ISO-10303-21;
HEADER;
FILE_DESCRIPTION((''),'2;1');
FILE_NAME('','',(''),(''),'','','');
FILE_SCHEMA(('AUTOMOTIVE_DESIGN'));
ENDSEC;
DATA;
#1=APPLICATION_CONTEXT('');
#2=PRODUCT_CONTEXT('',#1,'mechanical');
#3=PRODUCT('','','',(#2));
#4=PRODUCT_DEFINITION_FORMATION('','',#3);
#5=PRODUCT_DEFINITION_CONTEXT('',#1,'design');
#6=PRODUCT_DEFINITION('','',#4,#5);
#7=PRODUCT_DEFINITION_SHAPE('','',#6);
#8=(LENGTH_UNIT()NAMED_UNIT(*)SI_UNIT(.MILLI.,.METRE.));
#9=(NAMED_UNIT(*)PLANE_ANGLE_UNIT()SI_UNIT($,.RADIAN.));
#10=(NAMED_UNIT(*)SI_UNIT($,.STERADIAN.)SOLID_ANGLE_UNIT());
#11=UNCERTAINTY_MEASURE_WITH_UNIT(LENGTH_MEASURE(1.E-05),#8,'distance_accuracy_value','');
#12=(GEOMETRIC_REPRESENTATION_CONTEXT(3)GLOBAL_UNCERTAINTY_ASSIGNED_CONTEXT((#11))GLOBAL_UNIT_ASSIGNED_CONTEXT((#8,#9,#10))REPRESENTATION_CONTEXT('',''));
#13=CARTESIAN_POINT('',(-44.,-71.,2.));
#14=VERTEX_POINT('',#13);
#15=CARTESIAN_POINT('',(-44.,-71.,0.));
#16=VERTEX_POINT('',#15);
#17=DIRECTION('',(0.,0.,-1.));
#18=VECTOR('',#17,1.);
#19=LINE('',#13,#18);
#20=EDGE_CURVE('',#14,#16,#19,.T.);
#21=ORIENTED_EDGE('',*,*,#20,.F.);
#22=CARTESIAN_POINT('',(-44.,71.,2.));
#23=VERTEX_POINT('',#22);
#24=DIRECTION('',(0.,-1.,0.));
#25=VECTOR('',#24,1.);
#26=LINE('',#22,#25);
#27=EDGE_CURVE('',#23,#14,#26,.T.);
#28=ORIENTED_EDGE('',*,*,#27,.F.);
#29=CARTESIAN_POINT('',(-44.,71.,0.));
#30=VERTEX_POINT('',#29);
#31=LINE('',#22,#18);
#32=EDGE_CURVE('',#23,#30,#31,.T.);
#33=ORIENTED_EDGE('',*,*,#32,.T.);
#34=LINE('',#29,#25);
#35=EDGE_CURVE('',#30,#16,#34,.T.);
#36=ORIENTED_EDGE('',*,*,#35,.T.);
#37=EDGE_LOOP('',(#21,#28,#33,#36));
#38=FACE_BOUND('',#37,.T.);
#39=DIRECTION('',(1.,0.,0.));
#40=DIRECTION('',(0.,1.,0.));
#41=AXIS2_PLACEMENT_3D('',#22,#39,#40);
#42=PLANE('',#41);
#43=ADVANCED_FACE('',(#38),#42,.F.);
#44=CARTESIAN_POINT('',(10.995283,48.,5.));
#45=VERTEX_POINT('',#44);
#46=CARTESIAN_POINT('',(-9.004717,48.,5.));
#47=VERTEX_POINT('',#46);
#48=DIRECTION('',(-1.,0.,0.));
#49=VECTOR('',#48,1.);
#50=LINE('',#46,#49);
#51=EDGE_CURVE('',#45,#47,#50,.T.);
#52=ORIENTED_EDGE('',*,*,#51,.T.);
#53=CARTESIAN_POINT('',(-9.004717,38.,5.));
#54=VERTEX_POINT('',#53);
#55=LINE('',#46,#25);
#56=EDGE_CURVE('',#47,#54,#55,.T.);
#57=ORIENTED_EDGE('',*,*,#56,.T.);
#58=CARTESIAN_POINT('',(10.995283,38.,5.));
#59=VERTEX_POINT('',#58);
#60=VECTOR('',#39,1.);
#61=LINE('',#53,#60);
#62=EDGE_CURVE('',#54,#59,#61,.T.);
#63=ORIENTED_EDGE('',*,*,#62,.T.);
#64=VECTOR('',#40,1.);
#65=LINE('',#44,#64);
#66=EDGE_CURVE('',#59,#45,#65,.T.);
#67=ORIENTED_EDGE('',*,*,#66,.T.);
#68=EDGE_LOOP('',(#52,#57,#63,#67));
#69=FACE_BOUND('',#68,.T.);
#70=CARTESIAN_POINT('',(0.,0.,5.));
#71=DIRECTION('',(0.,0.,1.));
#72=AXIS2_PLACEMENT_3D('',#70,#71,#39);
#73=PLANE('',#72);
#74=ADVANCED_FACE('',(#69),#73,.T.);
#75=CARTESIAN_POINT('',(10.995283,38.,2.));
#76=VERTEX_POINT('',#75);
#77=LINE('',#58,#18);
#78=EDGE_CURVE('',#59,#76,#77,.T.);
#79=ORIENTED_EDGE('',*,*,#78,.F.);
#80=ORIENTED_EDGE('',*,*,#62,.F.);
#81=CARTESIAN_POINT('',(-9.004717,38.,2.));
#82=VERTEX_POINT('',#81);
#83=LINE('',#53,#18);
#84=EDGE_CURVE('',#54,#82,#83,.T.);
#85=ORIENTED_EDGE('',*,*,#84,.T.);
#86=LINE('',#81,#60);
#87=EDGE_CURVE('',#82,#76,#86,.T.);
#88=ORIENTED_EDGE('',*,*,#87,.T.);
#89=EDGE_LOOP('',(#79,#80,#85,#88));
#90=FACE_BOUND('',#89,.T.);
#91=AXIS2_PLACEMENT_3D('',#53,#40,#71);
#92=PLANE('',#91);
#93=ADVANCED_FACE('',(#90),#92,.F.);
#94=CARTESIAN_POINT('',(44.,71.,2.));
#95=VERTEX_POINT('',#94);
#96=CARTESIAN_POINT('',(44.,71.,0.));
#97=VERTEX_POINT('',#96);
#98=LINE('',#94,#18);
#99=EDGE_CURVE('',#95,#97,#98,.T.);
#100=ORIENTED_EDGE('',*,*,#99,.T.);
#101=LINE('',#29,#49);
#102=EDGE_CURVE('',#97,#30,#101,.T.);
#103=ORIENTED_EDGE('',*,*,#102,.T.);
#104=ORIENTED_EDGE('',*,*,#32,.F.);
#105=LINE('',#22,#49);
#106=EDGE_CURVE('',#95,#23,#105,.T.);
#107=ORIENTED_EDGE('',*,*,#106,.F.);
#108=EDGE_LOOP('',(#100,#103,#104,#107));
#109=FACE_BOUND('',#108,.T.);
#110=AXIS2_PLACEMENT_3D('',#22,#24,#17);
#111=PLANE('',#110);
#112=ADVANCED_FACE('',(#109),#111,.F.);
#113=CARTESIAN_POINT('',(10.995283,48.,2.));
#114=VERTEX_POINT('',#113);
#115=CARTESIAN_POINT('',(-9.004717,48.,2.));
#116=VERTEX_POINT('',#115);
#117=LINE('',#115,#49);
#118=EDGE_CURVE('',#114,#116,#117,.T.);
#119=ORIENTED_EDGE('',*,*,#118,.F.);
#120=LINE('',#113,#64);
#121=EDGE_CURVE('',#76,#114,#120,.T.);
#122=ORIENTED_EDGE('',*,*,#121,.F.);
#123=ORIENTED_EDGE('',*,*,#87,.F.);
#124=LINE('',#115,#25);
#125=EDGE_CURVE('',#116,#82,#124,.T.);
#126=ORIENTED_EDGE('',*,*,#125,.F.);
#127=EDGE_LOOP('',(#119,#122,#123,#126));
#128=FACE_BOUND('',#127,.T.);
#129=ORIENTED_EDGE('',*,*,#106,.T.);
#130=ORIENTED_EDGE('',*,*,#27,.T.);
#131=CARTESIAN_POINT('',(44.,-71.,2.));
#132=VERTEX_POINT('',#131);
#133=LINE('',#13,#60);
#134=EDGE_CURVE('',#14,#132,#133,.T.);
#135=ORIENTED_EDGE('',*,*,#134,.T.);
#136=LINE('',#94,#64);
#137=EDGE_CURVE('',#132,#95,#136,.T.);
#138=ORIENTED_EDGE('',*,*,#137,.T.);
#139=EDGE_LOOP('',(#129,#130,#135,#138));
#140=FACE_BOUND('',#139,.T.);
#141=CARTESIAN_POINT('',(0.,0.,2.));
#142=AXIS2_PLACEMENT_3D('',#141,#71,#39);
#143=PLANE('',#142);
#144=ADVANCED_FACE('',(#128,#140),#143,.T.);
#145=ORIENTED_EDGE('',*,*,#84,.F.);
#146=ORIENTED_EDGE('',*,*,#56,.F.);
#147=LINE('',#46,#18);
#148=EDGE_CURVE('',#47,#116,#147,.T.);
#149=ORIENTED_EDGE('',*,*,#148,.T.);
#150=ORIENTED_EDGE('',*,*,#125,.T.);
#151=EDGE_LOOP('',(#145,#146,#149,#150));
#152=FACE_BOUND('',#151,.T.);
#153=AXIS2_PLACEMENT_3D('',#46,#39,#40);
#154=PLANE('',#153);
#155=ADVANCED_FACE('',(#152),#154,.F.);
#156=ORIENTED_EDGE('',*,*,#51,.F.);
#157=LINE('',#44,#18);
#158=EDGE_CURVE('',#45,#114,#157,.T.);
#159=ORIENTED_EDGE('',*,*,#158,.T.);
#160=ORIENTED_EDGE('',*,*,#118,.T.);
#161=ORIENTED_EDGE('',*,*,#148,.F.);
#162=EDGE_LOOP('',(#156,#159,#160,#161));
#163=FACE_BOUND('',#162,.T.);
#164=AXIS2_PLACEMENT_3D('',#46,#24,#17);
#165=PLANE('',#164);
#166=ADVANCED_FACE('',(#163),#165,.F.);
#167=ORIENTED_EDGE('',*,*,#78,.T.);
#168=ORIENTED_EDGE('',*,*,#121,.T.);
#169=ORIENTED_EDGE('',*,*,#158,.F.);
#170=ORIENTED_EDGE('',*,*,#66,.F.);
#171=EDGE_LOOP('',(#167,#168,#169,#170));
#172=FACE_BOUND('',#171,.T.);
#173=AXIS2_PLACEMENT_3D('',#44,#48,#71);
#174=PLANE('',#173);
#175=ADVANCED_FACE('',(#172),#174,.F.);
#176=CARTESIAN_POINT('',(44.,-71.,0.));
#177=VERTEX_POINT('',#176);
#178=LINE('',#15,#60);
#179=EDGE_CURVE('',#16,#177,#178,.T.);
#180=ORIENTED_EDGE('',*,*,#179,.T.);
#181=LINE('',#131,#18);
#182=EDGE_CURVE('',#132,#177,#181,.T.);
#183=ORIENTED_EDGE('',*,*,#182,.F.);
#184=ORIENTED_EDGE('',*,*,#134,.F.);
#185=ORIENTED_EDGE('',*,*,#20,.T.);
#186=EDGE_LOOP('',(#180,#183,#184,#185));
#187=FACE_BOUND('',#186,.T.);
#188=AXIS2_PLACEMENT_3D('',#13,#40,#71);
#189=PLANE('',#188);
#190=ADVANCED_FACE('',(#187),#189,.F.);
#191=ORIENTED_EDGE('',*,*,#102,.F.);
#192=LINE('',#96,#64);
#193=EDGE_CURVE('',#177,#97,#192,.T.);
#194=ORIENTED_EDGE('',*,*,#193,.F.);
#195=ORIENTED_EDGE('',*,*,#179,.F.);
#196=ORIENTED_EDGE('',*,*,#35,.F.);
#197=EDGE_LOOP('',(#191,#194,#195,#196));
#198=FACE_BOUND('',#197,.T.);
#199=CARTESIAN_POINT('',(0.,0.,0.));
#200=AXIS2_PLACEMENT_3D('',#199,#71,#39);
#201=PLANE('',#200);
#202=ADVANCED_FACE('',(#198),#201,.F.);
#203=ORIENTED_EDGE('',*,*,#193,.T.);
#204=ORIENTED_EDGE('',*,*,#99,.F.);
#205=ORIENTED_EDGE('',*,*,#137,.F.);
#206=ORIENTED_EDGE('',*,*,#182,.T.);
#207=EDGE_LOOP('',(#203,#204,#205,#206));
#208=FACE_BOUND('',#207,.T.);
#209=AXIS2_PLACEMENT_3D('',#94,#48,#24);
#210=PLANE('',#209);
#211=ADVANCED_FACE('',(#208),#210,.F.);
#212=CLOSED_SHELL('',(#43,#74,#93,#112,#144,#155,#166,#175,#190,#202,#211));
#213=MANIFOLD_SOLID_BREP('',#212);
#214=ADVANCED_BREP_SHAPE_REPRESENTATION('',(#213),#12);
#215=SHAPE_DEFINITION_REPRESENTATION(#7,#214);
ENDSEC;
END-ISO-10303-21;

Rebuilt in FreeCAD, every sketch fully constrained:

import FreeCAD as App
import Part
import Sketcher

V = App.Vector
Q = App.Units.Quantity


def add_polygon(sketch, points):
    """Adds a closed chain of lines whose ends are joined by coincident constraints."""
    first, n = sketch.GeometryCount, len(points)
    for a, b in zip(points, points[1:] + points[:1]):
        sketch.addGeometry(Part.LineSegment(App.Vector(*a, 0), App.Vector(*b, 0)), False)
    for i in range(n):
        sketch.addConstraint(Sketcher.Constraint("Coincident", first + i, 2, first + (i + 1) % n, 1))

doc = App.newDocument("Part")
body = doc.addObject("PartDesign::Body", "Body")

# Sketch on XY plane
sketch1 = body.newObject("Sketcher::SketchObject", "Sketch")
sketch1.AttachmentSupport = (doc.getObject("XY_Plane"), [""])
sketch1.MapMode = "FlatFace"
add_polygon(sketch1, [(-44, 71), (-44, -71), (44, -71), (44, 71)])  # lines 0-3
sketch1.addConstraint(Sketcher.Constraint("Vertical", 0))
sketch1.addConstraint(Sketcher.Constraint("Horizontal", 1))
sketch1.addConstraint(Sketcher.Constraint("Vertical", 2))
sketch1.addConstraint(Sketcher.Constraint("Horizontal", 3))
sketch1.addConstraint(Sketcher.Constraint("Symmetric", 0, 2, 2, 2, -1, 1))
sketch1.addConstraint(Sketcher.Constraint("DistanceX", 1, 1, 1, 2, Q("88 mm")))
sketch1.addConstraint(Sketcher.Constraint("DistanceY", 0, 2, 0, 1, Q("142 mm")))
pad1 = body.newObject("PartDesign::Pad", "Pad")
pad1.Profile = sketch1
pad1.Length = 2

# Sketch on XY plane
sketch2 = body.newObject("Sketcher::SketchObject", "Sketch001")
sketch2.AttachmentSupport = (doc.getObject("XY_Plane"), [""])
sketch2.MapMode = "FlatFace"
sketch2.AttachmentOffset = App.Placement(V(0, 0, 2), App.Rotation())
add_polygon(sketch2, [(-9, 48), (-9, 38), (11, 38), (11, 48)])  # lines 0-3
sketch2.addConstraint(Sketcher.Constraint("Vertical", 0))
sketch2.addConstraint(Sketcher.Constraint("Horizontal", 1))
sketch2.addConstraint(Sketcher.Constraint("Vertical", 2))
sketch2.addConstraint(Sketcher.Constraint("Horizontal", 3))
sketch2.addConstraint(Sketcher.Constraint("DistanceX", 1, 1, 1, 2, Q("20 mm")))
sketch2.addConstraint(Sketcher.Constraint("DistanceY", 0, 2, 0, 1, Q("10 mm")))
sketch2.addConstraint(Sketcher.Constraint("DistanceY", -1, 1, 0, 2, Q("38 mm")))
sketch2.addConstraint(Sketcher.Constraint("DistanceX", 0, 2, -1, 1, Q("9.004717 mm")))
pad2 = body.newObject("PartDesign::Pad", "Pad001")
pad2.Profile = sketch2
pad2.Length = 3

doc.recompute()
